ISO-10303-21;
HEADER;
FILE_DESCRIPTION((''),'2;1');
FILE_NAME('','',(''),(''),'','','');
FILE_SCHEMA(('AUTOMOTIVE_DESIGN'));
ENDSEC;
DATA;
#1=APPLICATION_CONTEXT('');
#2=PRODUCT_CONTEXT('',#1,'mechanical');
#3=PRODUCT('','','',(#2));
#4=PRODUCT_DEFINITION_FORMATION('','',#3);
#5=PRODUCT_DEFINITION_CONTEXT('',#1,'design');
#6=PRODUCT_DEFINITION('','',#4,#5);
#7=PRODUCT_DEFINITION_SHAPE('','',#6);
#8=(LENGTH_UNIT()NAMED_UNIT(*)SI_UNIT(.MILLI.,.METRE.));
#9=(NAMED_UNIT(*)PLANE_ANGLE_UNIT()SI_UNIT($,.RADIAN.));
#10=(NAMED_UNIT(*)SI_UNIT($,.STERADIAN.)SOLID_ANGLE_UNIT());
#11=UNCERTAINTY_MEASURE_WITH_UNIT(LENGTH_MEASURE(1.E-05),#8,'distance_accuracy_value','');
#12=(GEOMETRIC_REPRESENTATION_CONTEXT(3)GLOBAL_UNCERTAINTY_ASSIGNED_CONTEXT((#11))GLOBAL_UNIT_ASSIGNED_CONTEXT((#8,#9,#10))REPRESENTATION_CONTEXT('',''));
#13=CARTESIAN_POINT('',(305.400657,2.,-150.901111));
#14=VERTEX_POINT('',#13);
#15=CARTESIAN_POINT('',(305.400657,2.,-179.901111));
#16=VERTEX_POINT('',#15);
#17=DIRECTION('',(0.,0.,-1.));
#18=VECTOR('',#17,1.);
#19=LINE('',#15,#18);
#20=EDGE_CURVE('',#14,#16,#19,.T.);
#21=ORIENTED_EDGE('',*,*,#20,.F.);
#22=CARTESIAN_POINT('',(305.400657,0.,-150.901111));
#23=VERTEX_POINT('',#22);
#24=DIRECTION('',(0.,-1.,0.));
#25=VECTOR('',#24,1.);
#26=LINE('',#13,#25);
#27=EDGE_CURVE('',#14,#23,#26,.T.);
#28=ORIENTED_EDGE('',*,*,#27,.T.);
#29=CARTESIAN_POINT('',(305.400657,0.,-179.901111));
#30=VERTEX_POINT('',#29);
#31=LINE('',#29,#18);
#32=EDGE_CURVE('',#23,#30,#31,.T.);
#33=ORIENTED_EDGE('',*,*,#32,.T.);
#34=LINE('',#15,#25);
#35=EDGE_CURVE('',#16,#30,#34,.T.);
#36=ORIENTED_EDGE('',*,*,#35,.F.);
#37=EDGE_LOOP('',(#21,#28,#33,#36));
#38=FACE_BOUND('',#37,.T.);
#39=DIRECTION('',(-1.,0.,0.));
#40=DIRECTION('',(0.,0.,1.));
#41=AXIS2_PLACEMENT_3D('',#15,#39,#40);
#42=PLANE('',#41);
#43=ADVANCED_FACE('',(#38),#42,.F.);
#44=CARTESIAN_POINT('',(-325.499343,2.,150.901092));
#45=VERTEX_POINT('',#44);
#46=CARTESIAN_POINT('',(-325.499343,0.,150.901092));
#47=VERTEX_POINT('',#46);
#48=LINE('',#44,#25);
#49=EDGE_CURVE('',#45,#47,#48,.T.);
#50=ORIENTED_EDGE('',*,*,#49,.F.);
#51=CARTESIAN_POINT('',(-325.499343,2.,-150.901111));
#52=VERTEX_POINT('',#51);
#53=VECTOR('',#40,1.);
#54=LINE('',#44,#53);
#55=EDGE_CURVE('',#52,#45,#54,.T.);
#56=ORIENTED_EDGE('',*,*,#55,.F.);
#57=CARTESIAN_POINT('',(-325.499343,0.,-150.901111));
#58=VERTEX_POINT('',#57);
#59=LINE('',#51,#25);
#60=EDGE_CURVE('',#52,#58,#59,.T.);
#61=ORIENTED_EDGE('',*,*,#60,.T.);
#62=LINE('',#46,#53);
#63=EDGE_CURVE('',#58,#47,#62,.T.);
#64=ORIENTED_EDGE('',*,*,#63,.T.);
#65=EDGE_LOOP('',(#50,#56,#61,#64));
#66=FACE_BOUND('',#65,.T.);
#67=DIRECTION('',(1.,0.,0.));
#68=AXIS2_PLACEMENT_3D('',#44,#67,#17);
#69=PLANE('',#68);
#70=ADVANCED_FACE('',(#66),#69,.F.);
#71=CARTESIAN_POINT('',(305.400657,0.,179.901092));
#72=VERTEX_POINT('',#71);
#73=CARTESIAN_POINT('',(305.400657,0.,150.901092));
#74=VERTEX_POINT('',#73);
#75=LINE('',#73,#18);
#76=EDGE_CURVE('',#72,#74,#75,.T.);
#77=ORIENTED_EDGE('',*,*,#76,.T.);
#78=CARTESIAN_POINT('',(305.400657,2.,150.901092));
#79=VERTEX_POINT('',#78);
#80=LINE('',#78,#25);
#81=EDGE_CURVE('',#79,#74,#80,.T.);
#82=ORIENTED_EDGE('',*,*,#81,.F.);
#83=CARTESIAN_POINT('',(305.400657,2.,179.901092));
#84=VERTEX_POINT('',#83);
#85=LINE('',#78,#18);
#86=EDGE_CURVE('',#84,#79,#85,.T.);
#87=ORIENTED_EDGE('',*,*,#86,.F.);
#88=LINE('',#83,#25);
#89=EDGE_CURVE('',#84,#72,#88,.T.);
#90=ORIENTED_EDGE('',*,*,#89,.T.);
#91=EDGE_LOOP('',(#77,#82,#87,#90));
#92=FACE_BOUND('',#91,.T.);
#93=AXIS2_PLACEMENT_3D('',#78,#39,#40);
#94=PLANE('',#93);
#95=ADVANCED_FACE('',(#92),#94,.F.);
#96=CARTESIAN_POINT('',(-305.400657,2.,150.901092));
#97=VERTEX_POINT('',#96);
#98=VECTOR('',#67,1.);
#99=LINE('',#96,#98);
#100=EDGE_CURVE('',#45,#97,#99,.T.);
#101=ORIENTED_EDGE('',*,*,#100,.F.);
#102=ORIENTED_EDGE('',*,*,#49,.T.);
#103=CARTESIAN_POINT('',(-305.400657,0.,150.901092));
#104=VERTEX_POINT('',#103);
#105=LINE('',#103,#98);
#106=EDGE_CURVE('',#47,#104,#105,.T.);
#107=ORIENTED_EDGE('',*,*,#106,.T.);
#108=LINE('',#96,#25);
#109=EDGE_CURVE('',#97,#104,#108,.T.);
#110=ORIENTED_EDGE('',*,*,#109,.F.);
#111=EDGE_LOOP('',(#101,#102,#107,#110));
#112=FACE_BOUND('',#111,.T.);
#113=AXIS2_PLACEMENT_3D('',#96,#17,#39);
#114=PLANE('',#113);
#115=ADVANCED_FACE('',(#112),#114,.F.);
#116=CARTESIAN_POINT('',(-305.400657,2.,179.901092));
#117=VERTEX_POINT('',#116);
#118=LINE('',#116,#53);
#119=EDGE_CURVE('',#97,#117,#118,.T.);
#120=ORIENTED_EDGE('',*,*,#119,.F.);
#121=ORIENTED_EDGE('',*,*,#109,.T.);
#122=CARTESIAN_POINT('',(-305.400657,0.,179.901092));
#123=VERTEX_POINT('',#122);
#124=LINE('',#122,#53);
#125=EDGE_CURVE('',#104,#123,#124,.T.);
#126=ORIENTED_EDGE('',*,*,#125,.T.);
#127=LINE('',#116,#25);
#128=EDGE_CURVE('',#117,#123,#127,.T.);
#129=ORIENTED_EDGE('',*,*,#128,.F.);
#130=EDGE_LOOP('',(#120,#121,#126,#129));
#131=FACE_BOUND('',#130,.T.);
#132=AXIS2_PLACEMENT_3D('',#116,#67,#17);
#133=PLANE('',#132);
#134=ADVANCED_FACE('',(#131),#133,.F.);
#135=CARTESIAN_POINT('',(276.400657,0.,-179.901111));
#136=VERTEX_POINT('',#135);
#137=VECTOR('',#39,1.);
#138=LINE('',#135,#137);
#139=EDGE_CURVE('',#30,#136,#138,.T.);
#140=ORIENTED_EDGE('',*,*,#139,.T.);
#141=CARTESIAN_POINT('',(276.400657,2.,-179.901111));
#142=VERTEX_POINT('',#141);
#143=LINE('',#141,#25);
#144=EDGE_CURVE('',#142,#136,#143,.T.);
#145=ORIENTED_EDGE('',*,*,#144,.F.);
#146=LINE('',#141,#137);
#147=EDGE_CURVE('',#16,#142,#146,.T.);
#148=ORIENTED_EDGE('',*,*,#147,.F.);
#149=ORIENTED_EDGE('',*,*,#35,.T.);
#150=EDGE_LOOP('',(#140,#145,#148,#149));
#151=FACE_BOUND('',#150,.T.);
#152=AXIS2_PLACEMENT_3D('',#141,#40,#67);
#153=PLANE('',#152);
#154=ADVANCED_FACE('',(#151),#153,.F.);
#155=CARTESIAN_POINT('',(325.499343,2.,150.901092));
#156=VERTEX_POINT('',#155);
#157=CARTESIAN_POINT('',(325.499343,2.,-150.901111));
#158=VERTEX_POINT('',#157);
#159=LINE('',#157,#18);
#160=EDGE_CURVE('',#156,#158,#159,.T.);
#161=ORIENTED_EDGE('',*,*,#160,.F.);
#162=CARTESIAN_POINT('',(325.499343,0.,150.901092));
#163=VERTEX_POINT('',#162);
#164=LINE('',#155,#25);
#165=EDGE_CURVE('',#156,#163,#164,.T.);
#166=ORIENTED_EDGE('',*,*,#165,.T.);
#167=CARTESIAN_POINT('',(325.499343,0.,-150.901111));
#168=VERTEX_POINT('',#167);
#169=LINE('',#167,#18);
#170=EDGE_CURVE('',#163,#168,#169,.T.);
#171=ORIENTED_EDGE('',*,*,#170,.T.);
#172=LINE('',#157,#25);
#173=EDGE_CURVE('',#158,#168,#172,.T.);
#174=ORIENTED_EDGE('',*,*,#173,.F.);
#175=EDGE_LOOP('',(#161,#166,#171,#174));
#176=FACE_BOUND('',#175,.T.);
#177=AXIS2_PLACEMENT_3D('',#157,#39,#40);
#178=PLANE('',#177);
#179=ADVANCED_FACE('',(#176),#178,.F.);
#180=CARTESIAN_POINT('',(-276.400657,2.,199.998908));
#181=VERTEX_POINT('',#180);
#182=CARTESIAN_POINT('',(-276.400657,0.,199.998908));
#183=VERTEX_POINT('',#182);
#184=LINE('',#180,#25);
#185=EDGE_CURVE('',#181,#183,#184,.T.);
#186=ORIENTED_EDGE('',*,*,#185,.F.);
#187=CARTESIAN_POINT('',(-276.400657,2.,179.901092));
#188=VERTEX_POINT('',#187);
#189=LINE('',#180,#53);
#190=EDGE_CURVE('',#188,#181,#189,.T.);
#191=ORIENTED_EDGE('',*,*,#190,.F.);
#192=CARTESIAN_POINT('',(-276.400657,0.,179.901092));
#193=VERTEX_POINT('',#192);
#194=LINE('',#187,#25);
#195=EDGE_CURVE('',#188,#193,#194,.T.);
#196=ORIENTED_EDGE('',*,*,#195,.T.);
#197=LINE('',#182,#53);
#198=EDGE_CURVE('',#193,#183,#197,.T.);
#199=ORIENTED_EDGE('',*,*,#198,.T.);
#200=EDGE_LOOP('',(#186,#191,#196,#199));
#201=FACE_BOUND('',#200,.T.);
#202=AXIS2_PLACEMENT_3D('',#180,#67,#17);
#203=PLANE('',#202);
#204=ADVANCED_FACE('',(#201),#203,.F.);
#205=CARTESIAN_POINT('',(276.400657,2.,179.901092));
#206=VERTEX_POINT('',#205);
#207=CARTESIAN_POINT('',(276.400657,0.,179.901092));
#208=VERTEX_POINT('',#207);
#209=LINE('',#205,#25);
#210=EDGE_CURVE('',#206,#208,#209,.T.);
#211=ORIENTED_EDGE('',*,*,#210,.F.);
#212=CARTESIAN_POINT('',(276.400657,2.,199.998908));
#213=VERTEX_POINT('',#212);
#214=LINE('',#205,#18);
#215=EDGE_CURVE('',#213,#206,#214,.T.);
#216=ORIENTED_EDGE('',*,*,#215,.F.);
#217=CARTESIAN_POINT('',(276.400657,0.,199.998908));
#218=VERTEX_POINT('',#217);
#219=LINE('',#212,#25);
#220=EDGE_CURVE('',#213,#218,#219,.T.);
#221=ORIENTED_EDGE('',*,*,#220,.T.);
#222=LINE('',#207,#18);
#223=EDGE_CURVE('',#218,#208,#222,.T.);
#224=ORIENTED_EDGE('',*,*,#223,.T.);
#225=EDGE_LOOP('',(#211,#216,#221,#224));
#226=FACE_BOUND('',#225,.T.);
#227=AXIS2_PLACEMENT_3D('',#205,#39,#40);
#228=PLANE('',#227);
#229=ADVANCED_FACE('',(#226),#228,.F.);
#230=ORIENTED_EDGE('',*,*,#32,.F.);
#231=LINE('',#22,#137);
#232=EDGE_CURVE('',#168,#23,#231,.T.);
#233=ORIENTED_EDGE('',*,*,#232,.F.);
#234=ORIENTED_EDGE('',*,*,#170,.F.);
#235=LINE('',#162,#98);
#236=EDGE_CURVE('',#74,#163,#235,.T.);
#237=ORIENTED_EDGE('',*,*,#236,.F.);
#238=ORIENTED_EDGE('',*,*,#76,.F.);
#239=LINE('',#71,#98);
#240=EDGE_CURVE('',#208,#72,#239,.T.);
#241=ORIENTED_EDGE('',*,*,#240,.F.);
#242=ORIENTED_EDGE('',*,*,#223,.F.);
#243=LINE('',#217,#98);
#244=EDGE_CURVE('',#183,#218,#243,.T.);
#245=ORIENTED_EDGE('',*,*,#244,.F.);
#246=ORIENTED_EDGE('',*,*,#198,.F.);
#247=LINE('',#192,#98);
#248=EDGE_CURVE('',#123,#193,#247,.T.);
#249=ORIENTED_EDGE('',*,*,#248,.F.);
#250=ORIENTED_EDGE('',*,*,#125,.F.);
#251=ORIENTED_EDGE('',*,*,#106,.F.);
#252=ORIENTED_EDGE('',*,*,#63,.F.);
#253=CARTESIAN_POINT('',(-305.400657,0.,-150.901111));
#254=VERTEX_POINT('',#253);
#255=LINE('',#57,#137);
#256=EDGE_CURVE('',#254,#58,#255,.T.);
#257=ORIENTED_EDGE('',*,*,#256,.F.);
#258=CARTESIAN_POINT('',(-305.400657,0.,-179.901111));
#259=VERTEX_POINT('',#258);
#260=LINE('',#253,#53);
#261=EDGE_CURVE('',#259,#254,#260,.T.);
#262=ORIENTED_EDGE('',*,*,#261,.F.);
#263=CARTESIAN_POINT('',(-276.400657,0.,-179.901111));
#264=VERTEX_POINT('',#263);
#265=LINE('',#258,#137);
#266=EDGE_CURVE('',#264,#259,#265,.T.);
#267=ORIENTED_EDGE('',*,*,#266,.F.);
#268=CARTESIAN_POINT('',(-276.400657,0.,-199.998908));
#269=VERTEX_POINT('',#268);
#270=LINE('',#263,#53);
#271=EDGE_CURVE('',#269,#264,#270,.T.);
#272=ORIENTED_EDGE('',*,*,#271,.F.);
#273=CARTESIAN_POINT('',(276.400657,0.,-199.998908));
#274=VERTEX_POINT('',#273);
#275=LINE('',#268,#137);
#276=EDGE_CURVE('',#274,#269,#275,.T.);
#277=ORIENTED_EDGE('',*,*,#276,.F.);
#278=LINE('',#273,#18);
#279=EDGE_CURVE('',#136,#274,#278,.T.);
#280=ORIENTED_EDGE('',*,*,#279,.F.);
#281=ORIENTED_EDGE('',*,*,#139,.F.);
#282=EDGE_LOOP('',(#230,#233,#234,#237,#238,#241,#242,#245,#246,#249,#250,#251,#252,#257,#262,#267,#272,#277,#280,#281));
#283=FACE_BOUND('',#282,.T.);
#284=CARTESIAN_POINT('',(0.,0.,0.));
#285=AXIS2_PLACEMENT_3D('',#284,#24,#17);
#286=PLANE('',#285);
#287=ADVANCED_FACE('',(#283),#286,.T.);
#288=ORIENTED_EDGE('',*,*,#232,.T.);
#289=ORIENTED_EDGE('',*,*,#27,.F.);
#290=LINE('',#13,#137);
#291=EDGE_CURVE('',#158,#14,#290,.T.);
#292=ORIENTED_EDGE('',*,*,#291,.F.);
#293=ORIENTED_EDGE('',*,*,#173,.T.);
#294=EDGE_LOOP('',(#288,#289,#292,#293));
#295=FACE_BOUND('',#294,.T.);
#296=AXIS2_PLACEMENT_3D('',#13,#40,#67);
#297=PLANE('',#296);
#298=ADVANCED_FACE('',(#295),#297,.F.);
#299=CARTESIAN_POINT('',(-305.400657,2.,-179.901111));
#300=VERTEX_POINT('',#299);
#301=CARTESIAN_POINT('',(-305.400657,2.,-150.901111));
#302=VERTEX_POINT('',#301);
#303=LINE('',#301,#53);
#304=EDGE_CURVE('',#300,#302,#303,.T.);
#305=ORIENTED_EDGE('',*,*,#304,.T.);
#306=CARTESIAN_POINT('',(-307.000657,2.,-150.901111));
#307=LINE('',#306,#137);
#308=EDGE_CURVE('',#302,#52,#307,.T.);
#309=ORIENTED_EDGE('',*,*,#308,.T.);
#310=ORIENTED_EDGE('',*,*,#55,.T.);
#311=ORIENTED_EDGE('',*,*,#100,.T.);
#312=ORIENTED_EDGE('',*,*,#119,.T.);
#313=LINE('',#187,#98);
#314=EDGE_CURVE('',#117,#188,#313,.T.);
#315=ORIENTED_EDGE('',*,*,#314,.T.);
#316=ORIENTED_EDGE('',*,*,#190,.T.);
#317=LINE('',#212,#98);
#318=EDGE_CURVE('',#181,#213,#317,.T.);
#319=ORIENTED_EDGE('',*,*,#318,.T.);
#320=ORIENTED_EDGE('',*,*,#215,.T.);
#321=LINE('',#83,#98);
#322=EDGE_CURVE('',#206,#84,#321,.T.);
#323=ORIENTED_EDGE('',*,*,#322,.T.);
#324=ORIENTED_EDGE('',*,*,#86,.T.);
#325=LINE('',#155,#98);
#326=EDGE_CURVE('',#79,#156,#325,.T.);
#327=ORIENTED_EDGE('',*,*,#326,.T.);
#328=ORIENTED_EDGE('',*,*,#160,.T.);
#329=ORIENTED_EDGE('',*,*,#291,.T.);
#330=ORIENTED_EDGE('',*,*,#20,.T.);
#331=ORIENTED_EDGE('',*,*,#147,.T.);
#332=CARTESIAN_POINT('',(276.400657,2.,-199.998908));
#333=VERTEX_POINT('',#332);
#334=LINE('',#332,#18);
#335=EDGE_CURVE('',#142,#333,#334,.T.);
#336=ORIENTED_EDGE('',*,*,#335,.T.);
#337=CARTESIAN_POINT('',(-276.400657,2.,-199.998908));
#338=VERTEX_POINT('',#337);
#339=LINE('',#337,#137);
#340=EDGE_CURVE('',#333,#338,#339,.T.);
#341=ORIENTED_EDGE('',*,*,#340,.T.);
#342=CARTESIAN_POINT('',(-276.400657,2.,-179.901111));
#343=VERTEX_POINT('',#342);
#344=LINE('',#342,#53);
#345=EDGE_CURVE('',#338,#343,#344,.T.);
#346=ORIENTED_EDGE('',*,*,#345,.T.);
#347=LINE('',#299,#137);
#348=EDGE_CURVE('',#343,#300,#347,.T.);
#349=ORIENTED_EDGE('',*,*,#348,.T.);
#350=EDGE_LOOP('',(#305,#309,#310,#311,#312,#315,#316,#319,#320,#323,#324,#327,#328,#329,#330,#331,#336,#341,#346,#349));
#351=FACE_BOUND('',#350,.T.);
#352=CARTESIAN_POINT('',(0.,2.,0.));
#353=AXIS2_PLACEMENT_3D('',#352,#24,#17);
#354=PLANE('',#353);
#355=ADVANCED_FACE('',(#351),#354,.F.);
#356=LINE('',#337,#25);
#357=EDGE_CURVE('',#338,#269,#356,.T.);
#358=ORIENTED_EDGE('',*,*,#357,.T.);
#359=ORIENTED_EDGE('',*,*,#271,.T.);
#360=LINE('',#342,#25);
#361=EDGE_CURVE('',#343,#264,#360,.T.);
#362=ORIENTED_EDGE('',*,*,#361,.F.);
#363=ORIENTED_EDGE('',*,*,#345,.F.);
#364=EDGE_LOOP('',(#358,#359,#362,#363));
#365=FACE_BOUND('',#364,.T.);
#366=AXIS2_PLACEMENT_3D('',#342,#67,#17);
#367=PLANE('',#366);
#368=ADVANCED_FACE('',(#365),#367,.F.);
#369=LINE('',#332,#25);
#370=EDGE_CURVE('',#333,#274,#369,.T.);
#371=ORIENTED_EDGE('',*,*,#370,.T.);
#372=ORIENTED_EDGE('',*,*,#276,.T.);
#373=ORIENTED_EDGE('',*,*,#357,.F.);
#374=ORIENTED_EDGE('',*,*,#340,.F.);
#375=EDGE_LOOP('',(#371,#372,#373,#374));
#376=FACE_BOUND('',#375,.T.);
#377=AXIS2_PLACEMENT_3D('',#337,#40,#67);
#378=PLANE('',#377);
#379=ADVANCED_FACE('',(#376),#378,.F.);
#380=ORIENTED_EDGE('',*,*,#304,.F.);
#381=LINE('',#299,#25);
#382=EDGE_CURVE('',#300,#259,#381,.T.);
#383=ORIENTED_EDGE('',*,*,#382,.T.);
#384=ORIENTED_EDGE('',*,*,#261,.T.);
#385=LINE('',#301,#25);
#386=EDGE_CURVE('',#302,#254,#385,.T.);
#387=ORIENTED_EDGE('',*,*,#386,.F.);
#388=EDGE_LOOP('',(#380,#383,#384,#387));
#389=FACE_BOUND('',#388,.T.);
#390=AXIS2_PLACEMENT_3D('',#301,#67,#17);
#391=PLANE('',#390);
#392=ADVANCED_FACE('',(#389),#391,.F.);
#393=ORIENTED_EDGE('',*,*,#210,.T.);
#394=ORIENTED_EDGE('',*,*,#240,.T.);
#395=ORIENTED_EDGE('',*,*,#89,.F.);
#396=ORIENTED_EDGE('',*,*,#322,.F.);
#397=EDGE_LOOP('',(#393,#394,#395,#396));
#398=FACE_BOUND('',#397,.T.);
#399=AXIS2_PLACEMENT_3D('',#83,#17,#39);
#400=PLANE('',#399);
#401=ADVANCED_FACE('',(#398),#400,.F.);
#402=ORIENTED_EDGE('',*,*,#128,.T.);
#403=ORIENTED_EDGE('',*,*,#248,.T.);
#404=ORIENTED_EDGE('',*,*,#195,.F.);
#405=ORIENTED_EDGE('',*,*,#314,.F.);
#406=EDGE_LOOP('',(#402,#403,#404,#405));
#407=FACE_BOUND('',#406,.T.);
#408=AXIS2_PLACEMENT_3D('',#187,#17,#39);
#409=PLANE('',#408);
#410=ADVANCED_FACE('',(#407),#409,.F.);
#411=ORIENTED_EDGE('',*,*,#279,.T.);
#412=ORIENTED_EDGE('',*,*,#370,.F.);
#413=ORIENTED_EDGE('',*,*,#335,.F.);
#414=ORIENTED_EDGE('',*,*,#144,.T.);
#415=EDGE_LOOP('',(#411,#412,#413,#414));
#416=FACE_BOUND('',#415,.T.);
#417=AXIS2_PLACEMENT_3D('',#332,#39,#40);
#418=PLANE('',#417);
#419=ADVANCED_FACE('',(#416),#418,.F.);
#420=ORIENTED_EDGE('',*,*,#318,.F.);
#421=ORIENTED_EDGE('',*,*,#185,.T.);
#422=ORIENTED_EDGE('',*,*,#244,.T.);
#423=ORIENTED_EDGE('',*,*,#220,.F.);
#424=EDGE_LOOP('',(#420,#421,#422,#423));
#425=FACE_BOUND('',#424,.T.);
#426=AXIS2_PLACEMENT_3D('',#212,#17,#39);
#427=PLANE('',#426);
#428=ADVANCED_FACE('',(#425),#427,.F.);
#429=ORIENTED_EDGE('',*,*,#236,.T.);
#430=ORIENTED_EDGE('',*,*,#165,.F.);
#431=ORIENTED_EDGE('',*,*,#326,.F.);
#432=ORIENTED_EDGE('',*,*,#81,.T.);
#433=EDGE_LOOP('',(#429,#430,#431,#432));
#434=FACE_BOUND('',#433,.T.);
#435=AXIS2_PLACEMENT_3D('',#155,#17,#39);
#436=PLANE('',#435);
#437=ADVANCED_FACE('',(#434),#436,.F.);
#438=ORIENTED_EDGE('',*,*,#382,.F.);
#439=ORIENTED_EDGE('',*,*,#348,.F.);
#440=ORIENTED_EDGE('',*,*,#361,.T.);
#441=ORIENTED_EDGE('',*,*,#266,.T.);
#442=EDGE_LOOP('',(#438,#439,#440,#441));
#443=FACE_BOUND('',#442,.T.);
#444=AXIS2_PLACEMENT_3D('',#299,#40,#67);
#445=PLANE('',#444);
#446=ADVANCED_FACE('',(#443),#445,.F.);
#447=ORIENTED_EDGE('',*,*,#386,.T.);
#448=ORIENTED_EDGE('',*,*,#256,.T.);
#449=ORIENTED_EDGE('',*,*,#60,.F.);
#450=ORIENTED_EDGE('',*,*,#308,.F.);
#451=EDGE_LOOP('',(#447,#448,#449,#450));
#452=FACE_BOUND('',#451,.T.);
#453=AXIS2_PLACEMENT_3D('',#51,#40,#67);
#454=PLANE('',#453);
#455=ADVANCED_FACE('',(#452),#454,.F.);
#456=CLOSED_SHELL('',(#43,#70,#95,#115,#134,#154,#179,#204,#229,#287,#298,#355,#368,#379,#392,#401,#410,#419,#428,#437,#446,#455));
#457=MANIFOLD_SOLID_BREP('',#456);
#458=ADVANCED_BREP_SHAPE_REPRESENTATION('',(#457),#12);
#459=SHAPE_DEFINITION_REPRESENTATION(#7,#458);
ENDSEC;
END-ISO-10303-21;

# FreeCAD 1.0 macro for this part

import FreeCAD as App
import Part
import Sketcher

V = App.Vector
Q = App.Units.Quantity


def add_polygon(sketch, points):
    """Adds a closed chain of lines whose ends are joined by coincident constraints."""
    first, n = sketch.GeometryCount, len(points)
    for a, b in zip(points, points[1:] + points[:1]):
        sketch.addGeometry(Part.LineSegment(App.Vector(*a, 0), App.Vector(*b, 0)), False)
    for i in range(n):
        sketch.addConstraint(Sketcher.Constraint("Coincident", first + i, 2, first + (i + 1) % n, 1))

doc = App.newDocument("Part")
body = doc.addObject("PartDesign::Body", "Body")

sketch1 = body.newObject("Sketcher::SketchObject", "Sketch")
sketch1.AttachmentSupport = (doc.getObject("XZ_Plane"), [""])
sketch1.MapMode = "FlatFace"
add_polygon(sketch1, [(-305, -151), (-325, -151), (-325, 151), (-305, 151), (-305, 180), (-276, 180), (-276, 200), (276, 200), (276, 180), (305, 180), (305, 151), (325, 151), (325, -151), (305, -151), (305, -180), (276, -180), (276, -200), (-276, -200), (-276, -180), (-305, -180)])
sketch1.addConstraint([
    Sketcher.Constraint("Horizontal", 0),
    Sketcher.Constraint("Vertical", 1),
    Sketcher.Constraint("Horizontal", 2),
    Sketcher.Constraint("Vertical", 3),
    Sketcher.Constraint("Horizontal", 4),
    Sketcher.Constraint("Vertical", 5),
    Sketcher.Constraint("Horizontal", 6),
    Sketcher.Constraint("Vertical", 7),
    Sketcher.Constraint("Horizontal", 8),
    Sketcher.Constraint("Vertical", 9),
    Sketcher.Constraint("Horizontal", 10),
    Sketcher.Constraint("Vertical", 11),
    Sketcher.Constraint("Horizontal", 12),
    Sketcher.Constraint("Vertical", 13),
    Sketcher.Constraint("Horizontal", 14),
    Sketcher.Constraint("Vertical", 15),
    Sketcher.Constraint("Horizontal", 16),
    Sketcher.Constraint("Vertical", 17),
    Sketcher.Constraint("Horizontal", 18),
    Sketcher.Constraint("Vertical", 19),
    Sketcher.Constraint("Symmetric", 5, 2, 15, 2, -1, 1),
    Sketcher.Constraint("Symmetric", 4, 2, 7, 2, -2),
    Sketcher.Constraint("Symmetric", 2, 2, 9, 2, -2),
    Sketcher.Constraint("Symmetric", 0, 2, 11, 2, -2),
    Sketcher.Constraint("Symmetric", 14, 2, 17, 2, -2),
    Sketcher.Constraint("Vertical", 9, 2, 12, 2),
    Sketcher.Constraint("Vertical", 3, 2, 18, 2),
    Sketcher.Constraint("Equal", 18, 3),
    Sketcher.Constraint("Equal", 9, 13),
    Sketcher.Constraint("DistanceX", 4, 1, 4, 2, Q("29 mm")),
    Sketcher.Constraint("DistanceX", 1, 2, 6, 2, Q("601.9 mm")),
    Sketcher.Constraint("DistanceY", 15, 2, 9, 2, Q("350.9 mm")),
    Sketcher.Constraint("DistanceX", 0, 2, 0, 1, Q("20.098685 mm")),
    Sketcher.Constraint("DistanceY", 1, 1, 1, 2, Q("301.802203 mm")),
    Sketcher.Constraint("DistanceY", 5, 1, 5, 2, Q("20.097817 mm")),
])
pad1 = body.newObject("PartDesign::Pad", "Pad")
pad1.Profile = sketch1
pad1.Length = 2
pad1.Reversed = True

doc.recompute()
